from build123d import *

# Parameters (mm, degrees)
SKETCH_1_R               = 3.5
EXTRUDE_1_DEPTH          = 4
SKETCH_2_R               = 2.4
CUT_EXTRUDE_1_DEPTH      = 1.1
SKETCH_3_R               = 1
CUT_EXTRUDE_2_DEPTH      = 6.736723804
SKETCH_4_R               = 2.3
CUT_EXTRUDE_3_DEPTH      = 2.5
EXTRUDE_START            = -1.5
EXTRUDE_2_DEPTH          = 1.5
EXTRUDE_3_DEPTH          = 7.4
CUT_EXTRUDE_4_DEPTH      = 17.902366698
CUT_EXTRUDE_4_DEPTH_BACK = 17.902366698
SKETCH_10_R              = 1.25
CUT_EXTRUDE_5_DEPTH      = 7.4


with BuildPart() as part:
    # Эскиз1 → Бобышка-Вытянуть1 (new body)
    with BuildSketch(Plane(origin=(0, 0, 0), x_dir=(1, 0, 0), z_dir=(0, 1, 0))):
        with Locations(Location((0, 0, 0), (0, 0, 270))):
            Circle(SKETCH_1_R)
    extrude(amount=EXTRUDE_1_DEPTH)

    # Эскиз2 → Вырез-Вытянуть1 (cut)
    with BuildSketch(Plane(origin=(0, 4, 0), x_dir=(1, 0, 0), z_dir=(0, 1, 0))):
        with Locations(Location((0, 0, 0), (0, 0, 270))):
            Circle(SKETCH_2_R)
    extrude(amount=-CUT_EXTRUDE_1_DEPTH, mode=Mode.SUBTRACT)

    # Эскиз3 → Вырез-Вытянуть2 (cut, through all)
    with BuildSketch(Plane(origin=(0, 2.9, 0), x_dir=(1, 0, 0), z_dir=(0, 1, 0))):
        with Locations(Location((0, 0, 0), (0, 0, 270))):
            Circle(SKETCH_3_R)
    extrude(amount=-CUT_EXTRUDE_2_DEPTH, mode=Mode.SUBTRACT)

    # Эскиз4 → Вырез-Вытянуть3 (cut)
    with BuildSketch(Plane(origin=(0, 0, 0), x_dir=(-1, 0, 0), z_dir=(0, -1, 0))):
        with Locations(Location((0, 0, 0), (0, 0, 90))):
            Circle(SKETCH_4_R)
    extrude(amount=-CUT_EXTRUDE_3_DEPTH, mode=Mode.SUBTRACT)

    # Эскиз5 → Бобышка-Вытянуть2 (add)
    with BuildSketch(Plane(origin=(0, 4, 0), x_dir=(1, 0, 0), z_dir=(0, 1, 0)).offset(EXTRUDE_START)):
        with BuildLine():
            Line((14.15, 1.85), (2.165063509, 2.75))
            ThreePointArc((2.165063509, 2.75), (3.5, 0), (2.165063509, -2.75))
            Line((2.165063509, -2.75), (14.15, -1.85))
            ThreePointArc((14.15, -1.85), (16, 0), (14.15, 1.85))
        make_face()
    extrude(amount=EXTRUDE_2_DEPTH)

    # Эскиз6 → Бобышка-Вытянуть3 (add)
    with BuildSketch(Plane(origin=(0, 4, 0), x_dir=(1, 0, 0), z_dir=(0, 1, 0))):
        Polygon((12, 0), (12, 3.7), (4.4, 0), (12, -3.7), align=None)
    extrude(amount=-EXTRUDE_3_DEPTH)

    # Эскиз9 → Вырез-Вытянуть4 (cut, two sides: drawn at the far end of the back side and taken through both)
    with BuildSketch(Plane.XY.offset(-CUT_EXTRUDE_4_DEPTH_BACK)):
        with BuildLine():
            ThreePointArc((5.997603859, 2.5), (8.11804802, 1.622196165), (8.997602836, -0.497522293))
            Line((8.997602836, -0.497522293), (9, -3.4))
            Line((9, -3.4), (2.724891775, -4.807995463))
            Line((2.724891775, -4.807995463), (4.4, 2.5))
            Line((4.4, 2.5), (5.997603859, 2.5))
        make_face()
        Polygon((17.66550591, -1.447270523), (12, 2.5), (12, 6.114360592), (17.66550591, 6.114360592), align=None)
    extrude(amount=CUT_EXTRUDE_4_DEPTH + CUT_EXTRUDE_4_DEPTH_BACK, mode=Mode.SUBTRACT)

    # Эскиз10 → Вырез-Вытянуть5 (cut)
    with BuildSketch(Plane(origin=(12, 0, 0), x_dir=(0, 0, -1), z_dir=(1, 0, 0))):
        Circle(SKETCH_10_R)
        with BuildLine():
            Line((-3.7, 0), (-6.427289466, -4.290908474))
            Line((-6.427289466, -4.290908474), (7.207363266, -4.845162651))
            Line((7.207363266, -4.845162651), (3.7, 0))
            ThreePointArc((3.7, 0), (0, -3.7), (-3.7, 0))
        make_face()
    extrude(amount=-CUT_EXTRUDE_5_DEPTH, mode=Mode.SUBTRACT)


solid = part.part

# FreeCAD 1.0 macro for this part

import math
import FreeCAD as App
import Part
import Sketcher

V = App.Vector
Q = App.Units.Quantity

doc = App.newDocument("Part")
body = doc.addObject("PartDesign::Body", "Body")

# Sketch on XZ plane
sketch1 = body.newObject("Sketcher::SketchObject", "Sketch")
sketch1.AttachmentSupport = (doc.getObject("XZ_Plane"), [""])
sketch1.MapMode = "FlatFace"
sketch1.addGeometry(Part.Circle(V(0, 0, 0), V(0, 0, 1), 3.5), False)
sketch1.addConstraint([
    Sketcher.Constraint("Coincident", 0, 3, -1, 1),
    Sketcher.Constraint("Diameter", 0, Q("7 mm")),
])
pad1 = body.newObject("PartDesign::Pad", "Pad")
pad1.Profile = sketch1
pad1.Length = 4
pad1.Reversed = True

# Sketch on XZ plane
sketch2 = body.newObject("Sketcher::SketchObject", "Sketch001")
sketch2.AttachmentSupport = (doc.getObject("XZ_Plane"), [""])
sketch2.MapMode = "FlatFace"
sketch2.AttachmentOffset = App.Placement(V(0, 0, -4), App.Rotation())
sketch2.addGeometry(Part.Circle(V(0, 0, 0), V(0, 0, 1), 2.4), False)
sketch2.addConstraint([
    Sketcher.Constraint("Coincident", 0, 3, -1, 1),
    Sketcher.Constraint("Diameter", 0, Q("4.8 mm")),
])
pocket1 = body.newObject("PartDesign::Pocket", "Pocket")
pocket1.Profile = sketch2
pocket1.Length = 1.1
pocket1.Reversed = True

# Sketch on XZ plane
sketch3 = body.newObject("Sketcher::SketchObject", "Sketch002")
sketch3.AttachmentSupport = (doc.getObject("XZ_Plane"), [""])
sketch3.MapMode = "FlatFace"
sketch3.AttachmentOffset = App.Placement(V(0, 0, -2.9), App.Rotation())
sketch3.addGeometry(Part.Circle(V(0, 0, 0), V(0, 0, 1), 1), False)
sketch3.addConstraint([
    Sketcher.Constraint("Coincident", 0, 3, -1, 1),
    Sketcher.Constraint("Diameter", 0, Q("2 mm")),
])
pocket2 = body.newObject("PartDesign::Pocket", "Pocket001")
pocket2.Profile = sketch3
pocket2.Type = "ThroughAll"
pocket2.Reversed = True

# Sketch on XZ plane
sketch4 = body.newObject("Sketcher::SketchObject", "Sketch003")
sketch4.AttachmentSupport = (doc.getObject("XZ_Plane"), [""])
sketch4.MapMode = "FlatFace"
sketch4.addGeometry(Part.Circle(V(0, 0, 0), V(0, 0, 1), 2.3), False)
sketch4.addConstraint([
    Sketcher.Constraint("Coincident", 0, 3, -1, 1),
    Sketcher.Constraint("Diameter", 0, Q("4.6 mm")),
])
pocket3 = body.newObject("PartDesign::Pocket", "Pocket002")
pocket3.Profile = sketch4
pocket3.Length = 2.5

# Sketch on XZ plane
sketch5 = body.newObject("Sketcher::SketchObject", "Sketch004")
sketch5.AttachmentSupport = (doc.getObject("XZ_Plane"), [""])
sketch5.MapMode = "FlatFace"
sketch5.AttachmentOffset = App.Placement(V(0, 0, -2.5), App.Rotation())
sketch5.addGeometry([
    Part.LineSegment(V(14.2, -1.9, 0), V(2.2, -2.8, 0)),
    Part.ArcOfCircle(Part.Circle(V(0, 0, 0), V(0, 0, 1), 3.5), math.radians(-52), math.radians(52)),
    Part.LineSegment(V(2.2, 2.8, 0), V(14.2, 1.9, 0)),
    Part.ArcOfCircle(Part.Circle(V(14.2, 0, 0), V(0, 0, 1), 1.9), math.radians(-90), math.radians(90)),
], False)
sketch5.addConstraint([
    Sketcher.Constraint("Coincident", 0, 2, 1, 1),
    Sketcher.Constraint("Coincident", 1, 2, 2, 1),
    Sketcher.Constraint("Coincident", 2, 2, 3, 2),
    Sketcher.Constraint("Coincident", 3, 1, 0, 1),
    Sketcher.Constraint("Coincident", 1, 3, -1, 1),
    Sketcher.Constraint("Symmetric", 2, 2, 3, 1, -1),
    Sketcher.Constraint("Vertical", 0, 2, 1, 2),
    Sketcher.Constraint("Vertical", 3, 3, 2, 2),
    Sketcher.Constraint("Radius", 1, Q("3.5 mm")),
    Sketcher.Constraint("Radius", 3, Q("1.85 mm")),
    Sketcher.Constraint("DistanceY", 0, 2, 1, 2, Q("5.5 mm")),
    Sketcher.Constraint("DistanceX", -1, 1, 3, 3, Q("14.15 mm")),
])
pad2 = body.newObject("PartDesign::Pad", "Pad001")
pad2.Profile = sketch5
pad2.Length = 1.5
pad2.Reversed = True

# Sketch on XZ plane
sketch6 = body.newObject("Sketcher::SketchObject", "Sketch005")
sketch6.AttachmentSupport = (doc.getObject("XZ_Plane"), [""])
sketch6.MapMode = "FlatFace"
sketch6.AttachmentOffset = App.Placement(V(0, 0, -4), App.Rotation())
sketch6.addGeometry([
    Part.LineSegment(V(12, -4, 0), V(4, 0, 0)),
    Part.LineSegment(V(4, 0, 0), V(12, 4, 0)),
    Part.LineSegment(V(12, 4, 0), V(12, -4, 0)),
], False)
sketch6.addConstraint([
    Sketcher.Constraint("Coincident", 0, 2, 1, 1),
    Sketcher.Constraint("Coincident", 1, 2, 2, 1),
    Sketcher.Constraint("Coincident", 2, 2, 0, 1),
    Sketcher.Constraint("Vertical", 2),
    Sketcher.Constraint("PointOnObject", 0, 2, -1),
    Sketcher.Constraint("Equal", 0, 1),
    Sketcher.Constraint("DistanceY", 2, 2, 2, 1, Q("7.4 mm")),
    Sketcher.Constraint("DistanceX", -1, 1, 1, 2, Q("12 mm")),
    Sketcher.Constraint("DistanceX", -1, 1, 0, 2, Q("4.4 mm")),
])
pad3 = body.newObject("PartDesign::Pad", "Pad002")
pad3.Profile = sketch6
pad3.Length = 7.4

# Sketch on XY plane
sketch7 = body.newObject("Sketcher::SketchObject", "Sketch006")
sketch7.AttachmentSupport = (doc.getObject("XY_Plane"), [""])
sketch7.MapMode = "FlatFace"
sketch7.addGeometry([
    Part.ArcOfCircle(Part.Circle(V(6, -0.5, 0), V(0, 0, 1), 3), math.radians(0), math.radians(90)),  # 0
    Part.LineSegment(V(6, 2.5, 0), V(4.4, 2.5, 0)),  # 1
    Part.LineSegment(V(4.4, 2.5, 0), V(2.7, -4.8, 0)),  # 2
    Part.LineSegment(V(2.7, -4.8, 0), V(9, -3.4, 0)),  # 3
    Part.LineSegment(V(9, -3.4, 0), V(9, -0.5, 0)),  # 4
    Part.LineSegment(V(12, 2.5, 0), V(17.7, -1.4, 0)),  # 5
    Part.LineSegment(V(17.7, -1.4, 0), V(17.7, 6.1, 0)),  # 6
    Part.LineSegment(V(17.7, 6.1, 0), V(12, 6.1, 0)),  # 7
    Part.LineSegment(V(12, 6.1, 0), V(12, 2.5, 0)),  # 8
], False)
sketch7.addConstraint([
    Sketcher.Constraint("Tangent", 0, 2, 1, 1),
    Sketcher.Constraint("Coincident", 1, 2, 2, 1),
    Sketcher.Constraint("Coincident", 2, 2, 3, 1),
    Sketcher.Constraint("Coincident", 3, 2, 4, 1),
    Sketcher.Constraint("Tangent", 4, 2, 0, 1),
    Sketcher.Constraint("Coincident", 5, 2, 6, 1),
    Sketcher.Constraint("Coincident", 6, 2, 7, 1),
    Sketcher.Constraint("Coincident", 7, 2, 8, 1),
    Sketcher.Constraint("Coincident", 8, 2, 5, 1),
    Sketcher.Constraint("Horizontal", 1),
    Sketcher.Constraint("Vertical", 6),
    Sketcher.Constraint("Horizontal", 7),
    Sketcher.Constraint("Vertical", 8),
    Sketcher.Constraint("Horizontal", 1, 2, 8, 2),
    Sketcher.Constraint("Radius", 0, Q("3 mm")),
    Sketcher.Constraint("DistanceX", -1, 1, 3, 2, Q("9 mm")),
    Sketcher.Constraint("DistanceX", -1, 1, 7, 2, Q("12 mm")),
    Sketcher.Constraint("DistanceY", 0, 3, -1, 1, Q("0.5 mm")),
    Sketcher.Constraint("DistanceX", -1, 1, 1, 2, Q("4.4 mm")),
    Sketcher.Constraint("DistanceY", 3, 2, -1, 1, Q("3.4 mm")),
    Sketcher.Constraint("DistanceY", 6, 1, 6, 2, Q("7.561631 mm")),
    Sketcher.Constraint("DistanceY", 8, 2, 8, 1, Q("3.614361 mm")),
    Sketcher.Constraint("Distance", 2, Q("7.497519 mm")),
    Sketcher.Constraint("Distance", 3, Q("6.43113 mm")),
    Sketcher.Constraint("Distance", 4, Q("2.902479 mm")),
    Sketcher.Constraint("Distance", 5, Q("6.904991 mm")),
])
pocket4 = body.newObject("PartDesign::Pocket", "Pocket003")
pocket4.Profile = sketch7
pocket4.Type = "ThroughAll"
pocket4.Midplane = True

# Sketch on YZ plane
sketch8 = body.newObject("Sketcher::SketchObject", "Sketch007")
sketch8.AttachmentSupport = (doc.getObject("YZ_Plane"), [""])
sketch8.MapMode = "FlatFace"
sketch8.AttachmentOffset = App.Placement(V(0, 0, 12), App.Rotation())
sketch8.addGeometry([
    Part.Circle(V(0, 0, 0), V(0, 0, 1), 1.2),  # 0
    Part.LineSegment(V(0, 3.7, 0), V(-4.3, 6.4, 0)),  # 1
    Part.LineSegment(V(-4.3, 6.4, 0), V(-4.8, -7.2, 0)),  # 2
    Part.LineSegment(V(-4.8, -7.2, 0), V(0, -3.7, 0)),  # 3
    Part.ArcOfCircle(Part.Circle(V(0, 0, 0), V(0, 0, 1), 3.7), math.radians(90), math.radians(270)),  # 4
], False)
sketch8.addConstraint([
    Sketcher.Constraint("Coincident", 1, 2, 2, 1),
    Sketcher.Constraint("Coincident", 2, 2, 3, 1),
    Sketcher.Constraint("Coincident", 3, 2, 4, 2),
    Sketcher.Constraint("Coincident", 4, 1, 1, 1),
    Sketcher.Constraint("Coincident", 0, 3, -1, 1),
    Sketcher.Constraint("Coincident", 4, 3, -1, 1),
    Sketcher.Constraint("PointOnObject", 3, 2, -2),
    Sketcher.Constraint("PointOnObject", 4, 1, -2),
    Sketcher.Constraint("Diameter", 0, Q("2.5 mm")),
    Sketcher.Constraint("Radius", 4, Q("3.7 mm")),
    Sketcher.Constraint("Distance", 1, Q("5.08429 mm")),
    Sketcher.Constraint("DistanceX", 1, 2, -1, 1, Q("4.290908 mm")),
    Sketcher.Constraint("Distance", 2, Q("13.645913 mm")),
    Sketcher.Constraint("Distance", 3, Q("5.981404 mm")),
])
pocket5 = body.newObject("PartDesign::Pocket", "Pocket004")
pocket5.Profile = sketch8
pocket5.Length = 7.4

doc.recompute()
